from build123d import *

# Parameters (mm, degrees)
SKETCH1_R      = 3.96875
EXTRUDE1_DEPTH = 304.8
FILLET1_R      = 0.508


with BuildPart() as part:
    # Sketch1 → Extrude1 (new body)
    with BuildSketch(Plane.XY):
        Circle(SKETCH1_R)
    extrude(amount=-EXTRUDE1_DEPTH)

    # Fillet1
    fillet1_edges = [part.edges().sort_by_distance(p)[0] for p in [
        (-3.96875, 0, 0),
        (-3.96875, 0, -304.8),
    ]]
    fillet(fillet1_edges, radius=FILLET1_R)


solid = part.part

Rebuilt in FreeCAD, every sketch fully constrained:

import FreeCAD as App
import Part
import Sketcher
Q = App.Units.Quantity


def edges_at(feature, points):
    """Names of the edges that pass closest to the given points."""
    edges = feature.Shape.Edges
    near = lambda p: min(range(len(edges)), key=lambda i: edges[i].distToShape(Part.Vertex(*p))[0])
    return sorted({f"Edge{near(p) + 1}" for p in points})

doc = App.newDocument("Part")
params = doc.addObject("Spreadsheet::Sheet", "Params")
for row, (alias, value) in enumerate([
    ("sketch1_diameter", "0.3125 in"),
    ("pad1_length", "12 in"),
    ("fillet_radius", "0.02 in"),
], start=1):
    params.set(f"A{row}", alias)
    params.set(f"B{row}", "=" + value)
    params.setAlias(f"B{row}", alias)

body = doc.addObject("PartDesign::Body", "Body")

# Sketch on XY plane
sketch1 = body.newObject("Sketcher::SketchObject", "Sketch")
sketch1.AttachmentSupport = (doc.getObject("XY_Plane"), [""])
sketch1.MapMode = "FlatFace"
sketch1.addGeometry(Part.Circle(App.Vector(0, 0, 0), App.Vector(0, 0, 1), 4), False)
sketch1.addConstraint([
    Sketcher.Constraint("Coincident", 0, 3, -1, 1),
    Sketcher.Constraint("Diameter", 0, Q("0.3125 in")),
])
sketch1.setExpression("Constraints[1]", "Params.sketch1_diameter")
pad1 = body.newObject("PartDesign::Pad", "Pad")
pad1.Profile = sketch1
pad1.setExpression("Length", "Params.pad1_length")
pad1.Reversed = True
doc.recompute()

fillet = body.newObject("PartDesign::Fillet", "Fillet")
fillet.Base = (pad1, edges_at(pad1, [(-3.969, 0, 0), (-3.969, 0, -304.8)]))
fillet.setExpression("Radius", "Params.fillet_radius")

doc.recompute()
